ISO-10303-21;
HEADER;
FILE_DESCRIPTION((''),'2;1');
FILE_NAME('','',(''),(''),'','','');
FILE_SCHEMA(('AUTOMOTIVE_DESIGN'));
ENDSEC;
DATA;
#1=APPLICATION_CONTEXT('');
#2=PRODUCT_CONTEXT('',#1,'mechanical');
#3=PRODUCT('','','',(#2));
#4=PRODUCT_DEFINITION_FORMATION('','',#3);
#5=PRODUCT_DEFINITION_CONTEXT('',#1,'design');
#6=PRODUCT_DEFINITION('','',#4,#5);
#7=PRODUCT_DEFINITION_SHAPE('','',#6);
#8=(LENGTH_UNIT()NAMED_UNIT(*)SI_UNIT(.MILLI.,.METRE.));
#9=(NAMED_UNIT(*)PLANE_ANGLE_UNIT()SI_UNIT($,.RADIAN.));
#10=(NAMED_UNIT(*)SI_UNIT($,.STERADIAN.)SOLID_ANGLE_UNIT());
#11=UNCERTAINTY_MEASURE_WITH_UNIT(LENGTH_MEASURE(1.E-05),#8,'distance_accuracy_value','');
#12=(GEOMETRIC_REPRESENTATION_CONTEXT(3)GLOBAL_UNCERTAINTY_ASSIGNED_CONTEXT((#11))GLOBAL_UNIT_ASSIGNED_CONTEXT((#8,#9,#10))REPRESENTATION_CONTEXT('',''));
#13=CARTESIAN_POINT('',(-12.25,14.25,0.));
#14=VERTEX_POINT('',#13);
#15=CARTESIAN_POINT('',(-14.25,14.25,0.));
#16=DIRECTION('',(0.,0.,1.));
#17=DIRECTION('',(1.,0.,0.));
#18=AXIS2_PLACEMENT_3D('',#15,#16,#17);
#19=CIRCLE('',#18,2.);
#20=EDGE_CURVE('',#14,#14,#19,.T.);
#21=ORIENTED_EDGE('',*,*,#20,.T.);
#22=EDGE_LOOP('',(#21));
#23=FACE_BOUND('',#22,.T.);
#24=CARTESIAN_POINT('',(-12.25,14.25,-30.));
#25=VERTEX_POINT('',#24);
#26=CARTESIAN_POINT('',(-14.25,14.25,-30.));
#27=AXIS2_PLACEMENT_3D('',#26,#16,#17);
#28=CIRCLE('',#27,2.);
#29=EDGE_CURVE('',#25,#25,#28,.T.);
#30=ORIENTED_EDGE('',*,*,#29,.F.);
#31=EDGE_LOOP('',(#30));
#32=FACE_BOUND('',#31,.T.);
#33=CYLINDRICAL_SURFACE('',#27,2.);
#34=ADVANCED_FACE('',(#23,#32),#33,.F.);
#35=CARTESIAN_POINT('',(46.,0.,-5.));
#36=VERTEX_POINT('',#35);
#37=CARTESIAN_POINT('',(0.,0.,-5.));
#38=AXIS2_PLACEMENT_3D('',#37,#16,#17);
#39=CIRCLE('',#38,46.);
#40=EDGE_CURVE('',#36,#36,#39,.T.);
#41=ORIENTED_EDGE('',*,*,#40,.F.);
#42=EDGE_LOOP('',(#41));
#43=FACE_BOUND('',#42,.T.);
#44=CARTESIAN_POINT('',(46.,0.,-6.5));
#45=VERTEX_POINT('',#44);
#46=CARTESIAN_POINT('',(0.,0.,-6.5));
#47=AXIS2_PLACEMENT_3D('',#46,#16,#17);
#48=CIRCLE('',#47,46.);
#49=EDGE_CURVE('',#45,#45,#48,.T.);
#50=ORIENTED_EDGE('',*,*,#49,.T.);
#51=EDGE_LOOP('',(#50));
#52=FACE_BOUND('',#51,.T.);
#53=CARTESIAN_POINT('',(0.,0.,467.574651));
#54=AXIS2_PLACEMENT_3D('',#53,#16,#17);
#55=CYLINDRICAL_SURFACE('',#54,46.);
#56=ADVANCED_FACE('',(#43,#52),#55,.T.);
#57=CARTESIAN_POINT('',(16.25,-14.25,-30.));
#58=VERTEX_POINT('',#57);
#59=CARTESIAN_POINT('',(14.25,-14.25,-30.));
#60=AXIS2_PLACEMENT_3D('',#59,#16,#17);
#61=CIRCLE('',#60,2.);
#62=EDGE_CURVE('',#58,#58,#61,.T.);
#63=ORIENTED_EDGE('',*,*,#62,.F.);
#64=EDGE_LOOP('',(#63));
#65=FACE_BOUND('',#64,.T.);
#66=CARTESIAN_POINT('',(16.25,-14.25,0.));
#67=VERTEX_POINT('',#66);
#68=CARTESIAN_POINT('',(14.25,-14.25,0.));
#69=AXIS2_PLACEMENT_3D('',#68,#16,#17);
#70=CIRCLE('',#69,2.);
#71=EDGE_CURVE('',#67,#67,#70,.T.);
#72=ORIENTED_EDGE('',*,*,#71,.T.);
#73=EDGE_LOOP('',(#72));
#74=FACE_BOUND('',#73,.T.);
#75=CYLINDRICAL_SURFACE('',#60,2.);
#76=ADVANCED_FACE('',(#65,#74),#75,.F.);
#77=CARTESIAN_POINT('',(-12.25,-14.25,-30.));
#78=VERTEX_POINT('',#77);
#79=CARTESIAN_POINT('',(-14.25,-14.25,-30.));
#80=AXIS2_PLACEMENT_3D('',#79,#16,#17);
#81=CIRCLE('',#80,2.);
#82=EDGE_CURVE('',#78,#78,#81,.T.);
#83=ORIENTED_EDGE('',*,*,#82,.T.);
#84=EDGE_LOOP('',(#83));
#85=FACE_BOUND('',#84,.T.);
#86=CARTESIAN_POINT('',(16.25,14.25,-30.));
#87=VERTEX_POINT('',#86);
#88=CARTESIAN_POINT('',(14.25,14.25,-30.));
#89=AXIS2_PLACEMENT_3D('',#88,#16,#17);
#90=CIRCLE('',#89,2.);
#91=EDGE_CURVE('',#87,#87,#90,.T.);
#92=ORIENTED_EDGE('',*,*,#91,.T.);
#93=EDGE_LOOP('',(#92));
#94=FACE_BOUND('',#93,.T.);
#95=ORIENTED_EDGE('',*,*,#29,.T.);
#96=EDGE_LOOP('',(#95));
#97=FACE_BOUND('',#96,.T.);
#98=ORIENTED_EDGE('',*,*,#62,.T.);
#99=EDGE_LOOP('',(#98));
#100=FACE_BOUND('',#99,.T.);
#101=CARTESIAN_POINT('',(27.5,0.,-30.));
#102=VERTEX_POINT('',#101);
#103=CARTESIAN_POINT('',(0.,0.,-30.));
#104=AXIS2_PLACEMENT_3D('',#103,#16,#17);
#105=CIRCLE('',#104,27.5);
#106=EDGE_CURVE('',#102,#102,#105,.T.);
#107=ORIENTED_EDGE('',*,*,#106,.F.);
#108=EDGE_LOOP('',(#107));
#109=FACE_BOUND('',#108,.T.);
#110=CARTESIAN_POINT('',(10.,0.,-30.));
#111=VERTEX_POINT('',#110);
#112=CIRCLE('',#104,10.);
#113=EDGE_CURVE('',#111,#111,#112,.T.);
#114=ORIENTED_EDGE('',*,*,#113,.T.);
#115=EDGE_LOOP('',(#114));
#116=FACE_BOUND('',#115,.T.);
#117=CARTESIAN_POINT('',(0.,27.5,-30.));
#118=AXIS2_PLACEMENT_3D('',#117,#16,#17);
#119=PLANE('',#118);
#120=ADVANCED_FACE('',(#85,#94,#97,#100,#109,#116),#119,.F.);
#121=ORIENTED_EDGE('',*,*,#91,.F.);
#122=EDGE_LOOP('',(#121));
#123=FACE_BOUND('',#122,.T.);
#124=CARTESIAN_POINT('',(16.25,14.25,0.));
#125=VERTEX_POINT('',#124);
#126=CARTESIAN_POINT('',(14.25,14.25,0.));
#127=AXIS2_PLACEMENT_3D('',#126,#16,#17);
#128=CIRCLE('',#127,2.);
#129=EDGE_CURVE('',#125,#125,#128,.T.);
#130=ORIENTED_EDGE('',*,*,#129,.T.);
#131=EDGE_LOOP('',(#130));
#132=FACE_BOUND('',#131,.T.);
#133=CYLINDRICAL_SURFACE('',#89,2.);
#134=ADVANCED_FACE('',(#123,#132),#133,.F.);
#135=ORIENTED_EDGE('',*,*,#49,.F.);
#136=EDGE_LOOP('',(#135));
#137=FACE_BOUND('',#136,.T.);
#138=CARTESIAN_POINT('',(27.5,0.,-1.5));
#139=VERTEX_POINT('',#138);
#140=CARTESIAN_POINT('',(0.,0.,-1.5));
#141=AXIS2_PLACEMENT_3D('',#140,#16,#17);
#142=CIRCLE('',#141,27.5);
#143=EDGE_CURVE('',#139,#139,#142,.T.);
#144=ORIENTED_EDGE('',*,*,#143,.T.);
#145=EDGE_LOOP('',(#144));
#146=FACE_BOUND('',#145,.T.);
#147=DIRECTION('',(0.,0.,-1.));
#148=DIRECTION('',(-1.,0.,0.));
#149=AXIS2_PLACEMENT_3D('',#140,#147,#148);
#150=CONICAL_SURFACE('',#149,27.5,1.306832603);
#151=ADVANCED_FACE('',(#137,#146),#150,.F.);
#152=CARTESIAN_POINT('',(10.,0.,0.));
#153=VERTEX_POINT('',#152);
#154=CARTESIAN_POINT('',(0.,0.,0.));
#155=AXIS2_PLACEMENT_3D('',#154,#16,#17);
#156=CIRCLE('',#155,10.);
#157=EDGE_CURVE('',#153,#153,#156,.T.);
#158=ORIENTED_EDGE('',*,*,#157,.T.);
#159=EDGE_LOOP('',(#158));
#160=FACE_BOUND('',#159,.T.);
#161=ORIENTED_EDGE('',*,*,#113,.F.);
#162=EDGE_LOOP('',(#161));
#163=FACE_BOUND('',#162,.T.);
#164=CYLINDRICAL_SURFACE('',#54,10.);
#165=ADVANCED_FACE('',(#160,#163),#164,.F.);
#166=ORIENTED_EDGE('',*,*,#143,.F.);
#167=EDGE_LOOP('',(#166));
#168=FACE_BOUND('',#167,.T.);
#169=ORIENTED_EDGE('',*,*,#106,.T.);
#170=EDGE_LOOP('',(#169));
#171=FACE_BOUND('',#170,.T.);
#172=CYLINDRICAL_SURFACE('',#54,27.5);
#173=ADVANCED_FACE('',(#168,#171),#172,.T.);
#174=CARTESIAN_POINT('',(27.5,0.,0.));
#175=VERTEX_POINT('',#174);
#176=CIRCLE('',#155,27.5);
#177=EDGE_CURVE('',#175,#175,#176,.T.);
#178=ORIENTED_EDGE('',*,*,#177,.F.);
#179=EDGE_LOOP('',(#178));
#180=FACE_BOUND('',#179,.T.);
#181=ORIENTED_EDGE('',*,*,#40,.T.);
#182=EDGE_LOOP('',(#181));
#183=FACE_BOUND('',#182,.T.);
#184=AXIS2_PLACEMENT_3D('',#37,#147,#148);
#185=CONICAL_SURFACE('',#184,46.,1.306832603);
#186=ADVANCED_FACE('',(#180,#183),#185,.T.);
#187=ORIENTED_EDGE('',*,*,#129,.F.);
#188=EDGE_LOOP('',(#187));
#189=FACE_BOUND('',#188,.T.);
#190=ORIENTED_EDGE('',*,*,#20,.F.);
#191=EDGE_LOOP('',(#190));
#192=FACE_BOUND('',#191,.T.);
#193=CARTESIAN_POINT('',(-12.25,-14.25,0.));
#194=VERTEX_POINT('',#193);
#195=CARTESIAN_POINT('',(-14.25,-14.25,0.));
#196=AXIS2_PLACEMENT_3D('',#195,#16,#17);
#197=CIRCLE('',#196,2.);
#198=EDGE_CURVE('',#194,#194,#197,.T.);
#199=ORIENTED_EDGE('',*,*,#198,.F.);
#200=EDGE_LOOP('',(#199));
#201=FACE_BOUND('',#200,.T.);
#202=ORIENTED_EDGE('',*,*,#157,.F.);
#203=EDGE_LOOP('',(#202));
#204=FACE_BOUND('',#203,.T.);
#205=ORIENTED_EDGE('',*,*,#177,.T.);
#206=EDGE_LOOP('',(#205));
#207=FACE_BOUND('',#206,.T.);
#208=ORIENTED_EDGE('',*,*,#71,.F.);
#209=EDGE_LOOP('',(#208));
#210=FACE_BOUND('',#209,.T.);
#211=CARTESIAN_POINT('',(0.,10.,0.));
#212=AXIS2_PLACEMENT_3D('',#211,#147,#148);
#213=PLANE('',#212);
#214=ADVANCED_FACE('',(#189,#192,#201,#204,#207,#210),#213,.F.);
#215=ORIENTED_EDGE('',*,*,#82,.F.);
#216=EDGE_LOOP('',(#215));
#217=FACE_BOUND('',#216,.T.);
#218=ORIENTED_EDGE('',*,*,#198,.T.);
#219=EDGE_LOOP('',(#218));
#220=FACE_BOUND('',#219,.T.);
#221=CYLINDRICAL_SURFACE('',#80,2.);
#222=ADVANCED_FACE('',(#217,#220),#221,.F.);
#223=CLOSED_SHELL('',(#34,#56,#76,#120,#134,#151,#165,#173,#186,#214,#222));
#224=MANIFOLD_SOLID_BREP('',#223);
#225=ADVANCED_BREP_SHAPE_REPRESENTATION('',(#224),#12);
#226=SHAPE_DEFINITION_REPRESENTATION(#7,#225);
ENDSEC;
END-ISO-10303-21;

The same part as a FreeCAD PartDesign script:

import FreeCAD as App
import Part
import Sketcher

V = App.Vector


def add_polygon(sketch, points):
    """Adds a closed chain of lines whose ends are joined by coincident constraints."""
    first, n = sketch.GeometryCount, len(points)
    for a, b in zip(points, points[1:] + points[:1]):
        sketch.addGeometry(Part.LineSegment(App.Vector(*a, 0), App.Vector(*b, 0)), False)
    for i in range(n):
        sketch.addConstraint(Sketcher.Constraint("Coincident", first + i, 2, first + (i + 1) % n, 1))

doc = App.newDocument("Part")
body = doc.addObject("PartDesign::Body", "Body")

# Sketch on YZ plane
sketch1 = body.newObject("Sketcher::SketchObject", "Sketch")
sketch1.AttachmentSupport = (doc.getObject("YZ_Plane"), [""])
sketch1.MapMode = "FlatFace"
add_polygon(sketch1, [(27.5, 0), (10, 0), (10, -30), (27.5, -30), (27.5, -1.5), (46, -6.5), (46, -5)])  # lines 0-6
sketch1.addConstraint(Sketcher.Constraint("Horizontal", 0))
sketch1.addConstraint(Sketcher.Constraint("Vertical", 1))
sketch1.addConstraint(Sketcher.Constraint("Horizontal", 2))
sketch1.addConstraint(Sketcher.Constraint("Vertical", 3))
sketch1.addConstraint(Sketcher.Constraint("Vertical", 5))
sketch1.addConstraint(Sketcher.Constraint("PointOnObject", 0, 2, -1))
sketch1.addConstraint(Sketcher.Constraint("Parallel", 4, 6))
sketch1.addConstraint(Sketcher.Constraint("Vertical", 3, 2, 6, 2))
sketch1.addConstraint(Sketcher.Constraint("DistanceY", 1, 2, 1, 1, 30.0))
sketch1.addConstraint(Sketcher.Constraint("DistanceX", 0, 2, 0, 1, 17.5))
sketch1.addConstraint(Sketcher.Constraint("DistanceY", 3, 1, 3, 2, 28.5))
sketch1.addConstraint(Sketcher.Constraint("DistanceX", -1, 1, 0, 2, 10.0))
sketch1.addConstraint(Sketcher.Constraint("DistanceX", -1, 1, 4, 2, 46.0))
sketch1.addConstraint(Sketcher.Constraint("DistanceY", 5, 2, -1, 1, 5.0))
revolution = body.newObject("PartDesign::Revolution", "Revolution")
revolution.Profile = sketch1
revolution.ReferenceAxis = (sketch1, ["V_Axis"])
revolution.Angle = 360

# Sketch on XY plane
sketch2 = body.newObject("Sketcher::SketchObject", "Sketch001")
sketch2.AttachmentSupport = (doc.getObject("XY_Plane"), [""])
sketch2.MapMode = "FlatFace"
sketch2.addGeometry(Part.Circle(V(-14.2, 14.2, 0), V(0, 0, 1), 2), False)
sketch2.addGeometry(Part.Circle(V(14.2, 14.2, 0), V(0, 0, 1), 2), False)
sketch2.addGeometry(Part.Circle(V(14.2, -14.2, 0), V(0, 0, 1), 2), False)
sketch2.addGeometry(Part.Circle(V(-14.2, -14.2, 0), V(0, 0, 1), 2), False)
sketch2.addConstraint(Sketcher.Constraint("Equal", 0, 1))
sketch2.addConstraint(Sketcher.Constraint("Equal", 1, 2))
sketch2.addConstraint(Sketcher.Constraint("Equal", 2, 3))
sketch2.addConstraint(Sketcher.Constraint("Symmetric", 0, 3, 2, 3, -1, 1))
sketch2.addConstraint(Sketcher.Constraint("Symmetric", 1, 3, 3, 3, -1, 1))
sketch2.addConstraint(Sketcher.Constraint("Symmetric", 0, 3, 1, 3, -2))
sketch2.addConstraint(Sketcher.Constraint("Diameter", 0, 4.0))
sketch2.addConstraint(Sketcher.Constraint("DistanceX", 0, 3, 1, 3, 28.5))
sketch2.addConstraint(Sketcher.Constraint("DistanceY", 2, 3, 1, 3, 28.5))
pocket1 = body.newObject("PartDesign::Pocket", "Pocket")
pocket1.Profile = sketch2
pocket1.Type = "ThroughAll"

doc.recompute()
